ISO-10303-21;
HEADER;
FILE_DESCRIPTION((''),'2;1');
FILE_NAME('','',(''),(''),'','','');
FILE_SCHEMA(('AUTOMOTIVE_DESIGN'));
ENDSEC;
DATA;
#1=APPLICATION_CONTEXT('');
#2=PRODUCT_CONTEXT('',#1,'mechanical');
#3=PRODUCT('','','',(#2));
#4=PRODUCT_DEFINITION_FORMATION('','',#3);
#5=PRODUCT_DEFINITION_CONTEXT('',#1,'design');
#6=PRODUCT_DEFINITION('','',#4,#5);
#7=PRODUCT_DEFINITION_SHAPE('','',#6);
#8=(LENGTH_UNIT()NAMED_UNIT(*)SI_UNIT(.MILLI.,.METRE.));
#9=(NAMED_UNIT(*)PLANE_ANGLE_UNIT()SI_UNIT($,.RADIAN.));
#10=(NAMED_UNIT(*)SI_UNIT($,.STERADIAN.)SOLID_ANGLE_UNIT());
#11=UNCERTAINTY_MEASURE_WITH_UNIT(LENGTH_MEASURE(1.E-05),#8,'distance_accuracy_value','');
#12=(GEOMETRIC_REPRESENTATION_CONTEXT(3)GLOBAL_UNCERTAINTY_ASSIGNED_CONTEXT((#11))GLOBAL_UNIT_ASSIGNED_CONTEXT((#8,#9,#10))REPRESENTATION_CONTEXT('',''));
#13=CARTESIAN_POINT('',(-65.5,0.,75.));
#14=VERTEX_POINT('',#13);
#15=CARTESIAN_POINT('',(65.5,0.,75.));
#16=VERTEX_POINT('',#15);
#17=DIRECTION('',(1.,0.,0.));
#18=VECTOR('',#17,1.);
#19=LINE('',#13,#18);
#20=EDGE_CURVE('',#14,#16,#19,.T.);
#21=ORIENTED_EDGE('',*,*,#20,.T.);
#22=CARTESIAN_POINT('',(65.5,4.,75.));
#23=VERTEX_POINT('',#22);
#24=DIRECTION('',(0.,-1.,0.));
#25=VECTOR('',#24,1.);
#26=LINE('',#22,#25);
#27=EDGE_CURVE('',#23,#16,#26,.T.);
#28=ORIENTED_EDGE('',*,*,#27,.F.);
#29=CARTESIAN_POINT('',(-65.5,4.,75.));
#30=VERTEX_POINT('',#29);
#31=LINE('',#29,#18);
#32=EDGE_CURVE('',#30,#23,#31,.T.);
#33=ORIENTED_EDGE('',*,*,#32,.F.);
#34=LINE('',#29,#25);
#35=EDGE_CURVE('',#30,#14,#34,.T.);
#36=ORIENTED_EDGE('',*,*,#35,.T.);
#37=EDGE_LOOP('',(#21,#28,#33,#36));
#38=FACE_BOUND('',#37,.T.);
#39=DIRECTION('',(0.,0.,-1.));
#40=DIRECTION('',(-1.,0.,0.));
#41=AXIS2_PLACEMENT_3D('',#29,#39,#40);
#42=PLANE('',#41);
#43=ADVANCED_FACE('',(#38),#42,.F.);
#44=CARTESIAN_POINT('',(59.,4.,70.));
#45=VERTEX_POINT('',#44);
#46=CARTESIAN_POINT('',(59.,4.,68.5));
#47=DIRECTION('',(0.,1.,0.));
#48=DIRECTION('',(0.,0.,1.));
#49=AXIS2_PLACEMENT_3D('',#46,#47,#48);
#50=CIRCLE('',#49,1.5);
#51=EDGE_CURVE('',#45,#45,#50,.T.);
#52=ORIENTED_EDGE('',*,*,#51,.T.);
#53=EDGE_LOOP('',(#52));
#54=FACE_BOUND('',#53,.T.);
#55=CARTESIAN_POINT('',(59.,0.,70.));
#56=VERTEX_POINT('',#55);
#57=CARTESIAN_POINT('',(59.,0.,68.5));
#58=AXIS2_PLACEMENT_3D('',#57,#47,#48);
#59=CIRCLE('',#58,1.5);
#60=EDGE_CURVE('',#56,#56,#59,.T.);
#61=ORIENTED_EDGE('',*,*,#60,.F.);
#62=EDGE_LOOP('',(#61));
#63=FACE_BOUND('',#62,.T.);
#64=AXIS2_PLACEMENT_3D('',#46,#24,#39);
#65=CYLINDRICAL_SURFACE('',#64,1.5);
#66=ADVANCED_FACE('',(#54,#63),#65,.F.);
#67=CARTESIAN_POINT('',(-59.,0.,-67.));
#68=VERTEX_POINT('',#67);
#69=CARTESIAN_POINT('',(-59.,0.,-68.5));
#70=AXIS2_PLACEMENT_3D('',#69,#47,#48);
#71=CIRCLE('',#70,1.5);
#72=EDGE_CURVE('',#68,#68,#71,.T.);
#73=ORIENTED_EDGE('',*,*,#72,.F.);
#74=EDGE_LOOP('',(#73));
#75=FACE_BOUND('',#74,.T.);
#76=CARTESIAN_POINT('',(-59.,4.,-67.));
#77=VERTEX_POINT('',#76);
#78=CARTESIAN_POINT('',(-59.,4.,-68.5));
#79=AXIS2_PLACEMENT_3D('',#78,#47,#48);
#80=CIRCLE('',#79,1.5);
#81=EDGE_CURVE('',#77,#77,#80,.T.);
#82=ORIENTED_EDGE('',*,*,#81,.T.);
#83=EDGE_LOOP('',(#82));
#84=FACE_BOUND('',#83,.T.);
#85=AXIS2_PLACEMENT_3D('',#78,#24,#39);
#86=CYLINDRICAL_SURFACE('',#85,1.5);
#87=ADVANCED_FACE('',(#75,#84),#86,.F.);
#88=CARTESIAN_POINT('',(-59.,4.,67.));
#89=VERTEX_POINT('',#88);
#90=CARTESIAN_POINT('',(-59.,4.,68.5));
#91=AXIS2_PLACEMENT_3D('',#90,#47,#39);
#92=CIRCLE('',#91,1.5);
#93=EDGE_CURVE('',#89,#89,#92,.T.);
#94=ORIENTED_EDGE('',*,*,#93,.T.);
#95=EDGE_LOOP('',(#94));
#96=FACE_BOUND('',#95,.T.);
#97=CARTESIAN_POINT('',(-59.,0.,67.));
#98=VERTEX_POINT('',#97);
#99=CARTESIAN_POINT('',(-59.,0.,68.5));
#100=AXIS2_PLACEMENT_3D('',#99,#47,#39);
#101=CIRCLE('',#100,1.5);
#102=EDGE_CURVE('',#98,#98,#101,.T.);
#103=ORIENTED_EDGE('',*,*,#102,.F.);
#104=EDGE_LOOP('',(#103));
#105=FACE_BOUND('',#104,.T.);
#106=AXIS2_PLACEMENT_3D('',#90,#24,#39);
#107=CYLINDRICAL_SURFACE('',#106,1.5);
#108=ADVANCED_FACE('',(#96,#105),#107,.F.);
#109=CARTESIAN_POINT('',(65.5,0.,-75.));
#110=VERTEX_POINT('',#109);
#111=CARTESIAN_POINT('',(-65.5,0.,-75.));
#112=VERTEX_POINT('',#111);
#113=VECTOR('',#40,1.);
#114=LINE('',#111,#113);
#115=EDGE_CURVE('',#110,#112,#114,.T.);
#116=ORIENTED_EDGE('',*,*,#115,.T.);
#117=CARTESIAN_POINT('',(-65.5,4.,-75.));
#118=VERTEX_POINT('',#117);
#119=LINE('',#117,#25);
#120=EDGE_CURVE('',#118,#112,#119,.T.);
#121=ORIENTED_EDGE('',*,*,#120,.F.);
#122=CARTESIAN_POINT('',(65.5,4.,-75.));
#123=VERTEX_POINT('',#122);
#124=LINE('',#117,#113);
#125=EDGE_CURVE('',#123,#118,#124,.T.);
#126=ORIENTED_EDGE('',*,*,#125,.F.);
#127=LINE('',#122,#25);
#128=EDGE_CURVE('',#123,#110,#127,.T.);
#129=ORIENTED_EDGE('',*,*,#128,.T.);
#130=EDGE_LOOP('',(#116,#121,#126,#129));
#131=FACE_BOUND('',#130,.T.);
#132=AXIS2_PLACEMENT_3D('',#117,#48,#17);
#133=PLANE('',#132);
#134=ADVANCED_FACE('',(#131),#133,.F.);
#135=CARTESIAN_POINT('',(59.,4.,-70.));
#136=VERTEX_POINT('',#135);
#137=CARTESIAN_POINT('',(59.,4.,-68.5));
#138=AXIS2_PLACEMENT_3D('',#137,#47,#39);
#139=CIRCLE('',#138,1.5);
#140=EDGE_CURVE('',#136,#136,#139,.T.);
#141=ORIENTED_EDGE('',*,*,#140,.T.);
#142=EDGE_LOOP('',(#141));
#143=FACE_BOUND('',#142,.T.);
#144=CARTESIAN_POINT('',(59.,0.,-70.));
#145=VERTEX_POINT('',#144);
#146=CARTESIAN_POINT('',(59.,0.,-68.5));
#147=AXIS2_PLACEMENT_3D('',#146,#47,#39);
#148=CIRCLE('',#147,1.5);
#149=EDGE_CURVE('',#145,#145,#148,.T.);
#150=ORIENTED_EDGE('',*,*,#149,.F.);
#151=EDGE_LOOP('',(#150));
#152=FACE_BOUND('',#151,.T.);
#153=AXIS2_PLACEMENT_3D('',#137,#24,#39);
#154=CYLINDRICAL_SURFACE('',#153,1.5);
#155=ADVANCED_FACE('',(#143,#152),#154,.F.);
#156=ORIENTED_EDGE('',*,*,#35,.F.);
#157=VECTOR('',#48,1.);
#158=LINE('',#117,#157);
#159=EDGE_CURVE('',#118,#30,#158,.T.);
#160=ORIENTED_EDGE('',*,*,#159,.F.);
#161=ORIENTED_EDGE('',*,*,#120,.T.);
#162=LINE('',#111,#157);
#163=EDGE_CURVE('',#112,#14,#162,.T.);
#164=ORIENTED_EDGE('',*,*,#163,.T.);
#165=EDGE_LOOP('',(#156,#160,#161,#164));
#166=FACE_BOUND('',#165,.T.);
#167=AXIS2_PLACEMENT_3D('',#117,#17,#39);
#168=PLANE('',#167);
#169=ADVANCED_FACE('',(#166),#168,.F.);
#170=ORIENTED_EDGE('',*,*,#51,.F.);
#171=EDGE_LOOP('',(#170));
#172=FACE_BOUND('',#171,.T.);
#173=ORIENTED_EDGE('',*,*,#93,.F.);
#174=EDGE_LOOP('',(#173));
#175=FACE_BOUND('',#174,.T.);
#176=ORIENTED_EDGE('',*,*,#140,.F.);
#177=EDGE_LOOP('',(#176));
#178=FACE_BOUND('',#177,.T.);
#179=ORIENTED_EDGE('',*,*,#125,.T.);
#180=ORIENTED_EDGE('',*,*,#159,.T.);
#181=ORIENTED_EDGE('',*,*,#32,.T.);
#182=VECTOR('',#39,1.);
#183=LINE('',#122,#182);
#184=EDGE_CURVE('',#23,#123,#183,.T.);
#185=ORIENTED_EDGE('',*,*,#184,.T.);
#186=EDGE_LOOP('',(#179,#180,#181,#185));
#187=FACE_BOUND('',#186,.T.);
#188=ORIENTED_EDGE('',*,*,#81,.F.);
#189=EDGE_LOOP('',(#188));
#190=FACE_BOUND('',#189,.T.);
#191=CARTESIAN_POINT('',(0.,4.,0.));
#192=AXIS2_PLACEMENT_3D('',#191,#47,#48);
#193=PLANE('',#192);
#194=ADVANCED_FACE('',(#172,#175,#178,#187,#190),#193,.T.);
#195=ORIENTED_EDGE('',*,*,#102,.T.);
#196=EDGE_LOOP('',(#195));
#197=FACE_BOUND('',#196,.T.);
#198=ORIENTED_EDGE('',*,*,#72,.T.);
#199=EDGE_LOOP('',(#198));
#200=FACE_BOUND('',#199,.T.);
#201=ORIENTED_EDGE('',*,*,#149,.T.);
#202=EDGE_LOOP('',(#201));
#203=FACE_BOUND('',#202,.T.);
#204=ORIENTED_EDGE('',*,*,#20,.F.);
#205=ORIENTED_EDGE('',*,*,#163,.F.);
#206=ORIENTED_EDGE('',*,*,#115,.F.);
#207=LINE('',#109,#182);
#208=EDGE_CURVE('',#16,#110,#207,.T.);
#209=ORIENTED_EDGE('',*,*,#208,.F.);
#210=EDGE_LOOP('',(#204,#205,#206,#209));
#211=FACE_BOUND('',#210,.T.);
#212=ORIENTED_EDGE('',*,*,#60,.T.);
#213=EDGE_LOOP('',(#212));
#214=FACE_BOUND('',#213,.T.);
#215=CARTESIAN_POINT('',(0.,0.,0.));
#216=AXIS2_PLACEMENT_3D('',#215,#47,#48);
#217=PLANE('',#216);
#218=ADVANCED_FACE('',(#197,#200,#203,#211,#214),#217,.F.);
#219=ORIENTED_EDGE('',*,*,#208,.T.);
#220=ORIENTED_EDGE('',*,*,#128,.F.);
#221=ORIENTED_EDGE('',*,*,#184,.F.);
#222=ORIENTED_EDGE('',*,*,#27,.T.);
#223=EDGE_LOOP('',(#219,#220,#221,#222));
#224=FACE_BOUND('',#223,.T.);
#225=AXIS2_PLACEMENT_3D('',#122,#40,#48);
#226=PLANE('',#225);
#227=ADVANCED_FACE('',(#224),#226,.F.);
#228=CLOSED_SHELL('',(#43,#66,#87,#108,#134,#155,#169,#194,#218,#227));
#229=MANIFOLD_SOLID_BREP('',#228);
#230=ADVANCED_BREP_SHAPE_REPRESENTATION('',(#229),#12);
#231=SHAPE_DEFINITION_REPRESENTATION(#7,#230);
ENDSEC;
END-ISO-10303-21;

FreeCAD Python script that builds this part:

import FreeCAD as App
import Part
import Sketcher
from FreeCAD import Vector
Q = App.Units.Quantity

doc = App.newDocument("Part")
body = doc.addObject("PartDesign::Body", "Body")

sketch1 = body.newObject("Sketcher::SketchObject", "Sketch")
sketch1.AttachmentSupport = (doc.getObject("XZ_Plane"), [""])
sketch1.MapMode = "FlatFace"
sketch1.addGeometry([
    Part.LineSegment(Vector(-65.5, -75, 0), Vector(-65.5, 75, 0)),
    Part.LineSegment(Vector(-65.5, 75, 0), Vector(65.5, 75, 0)),
    Part.LineSegment(Vector(65.5, 75, 0), Vector(65.5, -75, 0)),
    Part.LineSegment(Vector(65.5, -75, 0), Vector(-65.5, -75, 0)),
    Part.Circle(Vector(-59, 68.5, 0), Vector(0, 0, 1), 1.5),
    Part.Circle(Vector(59, 68.5, 0), Vector(0, 0, 1), 1.5),
    Part.Circle(Vector(-59, -68.5, 0), Vector(0, 0, 1), 1.5),
    Part.Circle(Vector(59, -68.5, 0), Vector(0, 0, 1), 1.5),
], False)
sketch1.addConstraint([
    Sketcher.Constraint("Coincident", 0, 2, 1, 1),
    Sketcher.Constraint("Coincident", 1, 2, 2, 1),
    Sketcher.Constraint("Coincident", 2, 2, 3, 1),
    Sketcher.Constraint("Coincident", 3, 2, 0, 1),
    Sketcher.Constraint("Vertical", 0),
    Sketcher.Constraint("Horizontal", 1),
    Sketcher.Constraint("Vertical", 2),
    Sketcher.Constraint("Horizontal", 3),
    Sketcher.Constraint("Equal", 4, 5),
    Sketcher.Constraint("Equal", 5, 6),
    Sketcher.Constraint("Equal", 6, 7),
    Sketcher.Constraint("Symmetric", 5, 3, 6, 3, -1, 1),
    Sketcher.Constraint("Symmetric", 4, 3, 7, 3, -1, 1),
    Sketcher.Constraint("Symmetric", 0, 2, 2, 2, -1, 1),
    Sketcher.Constraint("Symmetric", 4, 3, 5, 3, -2),
    Sketcher.Constraint("Diameter", 4, Q("3 mm")),
    Sketcher.Constraint("DistanceX", 1, 1, 1, 2, Q("131 mm")),
    Sketcher.Constraint("DistanceY", 0, 1, 0, 2, Q("150 mm")),
    Sketcher.Constraint("DistanceX", 4, 3, -1, 1, Q("59 mm")),
    Sketcher.Constraint("DistanceY", 6, 3, 4, 3, Q("137 mm")),
])
pad1 = body.newObject("PartDesign::Pad", "Pad")
pad1.Profile = sketch1
pad1.Length = 4
pad1.Reversed = True

doc.recompute()
